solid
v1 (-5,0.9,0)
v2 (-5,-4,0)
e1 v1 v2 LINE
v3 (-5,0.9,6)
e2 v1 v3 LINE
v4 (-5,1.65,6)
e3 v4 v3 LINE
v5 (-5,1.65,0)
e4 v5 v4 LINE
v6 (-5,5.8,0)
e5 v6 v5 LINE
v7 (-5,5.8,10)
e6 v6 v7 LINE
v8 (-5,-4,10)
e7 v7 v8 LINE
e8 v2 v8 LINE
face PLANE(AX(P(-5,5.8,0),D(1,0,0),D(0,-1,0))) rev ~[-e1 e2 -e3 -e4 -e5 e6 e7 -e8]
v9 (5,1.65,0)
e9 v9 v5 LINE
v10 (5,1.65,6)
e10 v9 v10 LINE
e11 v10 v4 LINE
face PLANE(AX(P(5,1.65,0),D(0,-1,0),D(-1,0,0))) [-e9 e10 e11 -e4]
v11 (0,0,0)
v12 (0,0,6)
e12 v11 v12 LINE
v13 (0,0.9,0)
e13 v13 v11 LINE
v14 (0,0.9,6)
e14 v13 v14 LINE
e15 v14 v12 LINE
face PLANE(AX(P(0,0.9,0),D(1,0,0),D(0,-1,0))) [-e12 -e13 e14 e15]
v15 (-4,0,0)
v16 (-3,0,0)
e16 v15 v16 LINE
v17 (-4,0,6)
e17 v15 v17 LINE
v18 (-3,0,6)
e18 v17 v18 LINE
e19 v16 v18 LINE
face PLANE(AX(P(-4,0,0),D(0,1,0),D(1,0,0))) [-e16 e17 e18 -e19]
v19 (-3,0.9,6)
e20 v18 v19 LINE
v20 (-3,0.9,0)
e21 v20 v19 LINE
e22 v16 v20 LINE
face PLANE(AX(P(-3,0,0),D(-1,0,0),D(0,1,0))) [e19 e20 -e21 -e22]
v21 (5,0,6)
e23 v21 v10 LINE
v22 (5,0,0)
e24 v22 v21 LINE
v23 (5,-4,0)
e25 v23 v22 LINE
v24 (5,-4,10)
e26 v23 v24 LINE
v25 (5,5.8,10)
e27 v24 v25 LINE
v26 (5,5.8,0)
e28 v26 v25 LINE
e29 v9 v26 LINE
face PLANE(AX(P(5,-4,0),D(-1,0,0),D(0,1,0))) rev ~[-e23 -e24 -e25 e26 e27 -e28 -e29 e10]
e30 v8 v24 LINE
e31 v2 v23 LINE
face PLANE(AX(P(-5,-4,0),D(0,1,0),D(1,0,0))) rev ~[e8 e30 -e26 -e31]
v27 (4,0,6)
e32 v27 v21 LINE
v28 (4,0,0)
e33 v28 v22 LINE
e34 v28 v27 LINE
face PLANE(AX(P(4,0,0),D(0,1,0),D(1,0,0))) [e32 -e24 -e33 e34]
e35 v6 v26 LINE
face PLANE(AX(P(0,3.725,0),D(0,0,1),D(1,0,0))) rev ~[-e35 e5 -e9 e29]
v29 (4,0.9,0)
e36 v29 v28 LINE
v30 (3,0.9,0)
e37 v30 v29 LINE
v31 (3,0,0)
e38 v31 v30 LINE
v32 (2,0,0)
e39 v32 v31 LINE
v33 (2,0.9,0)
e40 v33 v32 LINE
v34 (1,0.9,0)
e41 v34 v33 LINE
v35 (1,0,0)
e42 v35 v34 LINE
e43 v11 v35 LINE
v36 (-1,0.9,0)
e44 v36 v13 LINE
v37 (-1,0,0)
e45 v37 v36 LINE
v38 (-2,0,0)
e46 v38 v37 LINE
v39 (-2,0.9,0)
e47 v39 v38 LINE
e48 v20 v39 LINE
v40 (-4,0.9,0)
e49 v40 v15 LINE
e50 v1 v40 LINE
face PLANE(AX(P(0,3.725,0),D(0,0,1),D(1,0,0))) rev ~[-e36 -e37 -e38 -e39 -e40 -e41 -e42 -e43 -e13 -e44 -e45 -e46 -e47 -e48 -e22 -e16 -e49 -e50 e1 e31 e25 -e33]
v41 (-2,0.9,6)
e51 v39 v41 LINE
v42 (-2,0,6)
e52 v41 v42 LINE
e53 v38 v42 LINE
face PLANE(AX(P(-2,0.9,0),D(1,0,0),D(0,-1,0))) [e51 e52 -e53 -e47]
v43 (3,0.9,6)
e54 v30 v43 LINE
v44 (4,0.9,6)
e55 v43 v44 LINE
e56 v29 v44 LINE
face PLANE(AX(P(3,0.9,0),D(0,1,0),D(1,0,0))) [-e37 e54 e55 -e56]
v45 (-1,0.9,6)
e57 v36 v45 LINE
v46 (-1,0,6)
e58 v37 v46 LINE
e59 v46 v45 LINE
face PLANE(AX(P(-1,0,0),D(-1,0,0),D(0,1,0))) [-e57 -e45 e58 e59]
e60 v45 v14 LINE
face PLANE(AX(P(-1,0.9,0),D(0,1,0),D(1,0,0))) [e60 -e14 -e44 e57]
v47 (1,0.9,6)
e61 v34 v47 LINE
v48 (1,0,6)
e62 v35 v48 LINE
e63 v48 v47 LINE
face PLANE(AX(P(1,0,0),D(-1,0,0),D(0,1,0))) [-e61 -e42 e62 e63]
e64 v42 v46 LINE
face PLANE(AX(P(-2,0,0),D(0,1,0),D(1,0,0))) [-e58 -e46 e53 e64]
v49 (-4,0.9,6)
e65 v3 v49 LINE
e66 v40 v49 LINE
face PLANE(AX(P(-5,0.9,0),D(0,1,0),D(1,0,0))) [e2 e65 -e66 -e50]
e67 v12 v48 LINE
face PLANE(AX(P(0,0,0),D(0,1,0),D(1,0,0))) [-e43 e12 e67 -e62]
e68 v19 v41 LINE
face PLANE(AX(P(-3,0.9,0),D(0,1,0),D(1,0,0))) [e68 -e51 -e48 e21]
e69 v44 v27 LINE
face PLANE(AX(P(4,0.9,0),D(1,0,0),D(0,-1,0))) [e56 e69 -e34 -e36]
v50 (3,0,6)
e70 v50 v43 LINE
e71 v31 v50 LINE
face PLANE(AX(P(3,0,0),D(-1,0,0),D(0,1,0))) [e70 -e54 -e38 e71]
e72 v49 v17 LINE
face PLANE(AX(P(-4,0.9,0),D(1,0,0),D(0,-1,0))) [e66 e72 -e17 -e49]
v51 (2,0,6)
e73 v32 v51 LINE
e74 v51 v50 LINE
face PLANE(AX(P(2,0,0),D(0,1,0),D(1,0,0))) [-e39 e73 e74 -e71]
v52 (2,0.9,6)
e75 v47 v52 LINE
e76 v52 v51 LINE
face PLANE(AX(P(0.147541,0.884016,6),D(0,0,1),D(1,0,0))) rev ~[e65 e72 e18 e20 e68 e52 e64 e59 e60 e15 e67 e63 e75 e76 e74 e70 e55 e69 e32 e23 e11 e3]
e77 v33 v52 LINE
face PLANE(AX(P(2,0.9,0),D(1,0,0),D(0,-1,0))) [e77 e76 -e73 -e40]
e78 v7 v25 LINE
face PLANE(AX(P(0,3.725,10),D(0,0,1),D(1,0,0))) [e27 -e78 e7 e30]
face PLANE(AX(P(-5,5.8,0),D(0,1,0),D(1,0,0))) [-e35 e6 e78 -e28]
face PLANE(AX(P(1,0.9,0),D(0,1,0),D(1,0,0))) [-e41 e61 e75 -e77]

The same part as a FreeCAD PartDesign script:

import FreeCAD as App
import Part
import Sketcher

V = App.Vector


def add_polygon(sketch, points):
    """Adds a closed chain of lines whose ends are joined by coincident constraints."""
    first, n = sketch.GeometryCount, len(points)
    for a, b in zip(points, points[1:] + points[:1]):
        sketch.addGeometry(Part.LineSegment(App.Vector(*a, 0), App.Vector(*b, 0)), False)
    for i in range(n):
        sketch.addConstraint(Sketcher.Constraint("Coincident", first + i, 2, first + (i + 1) % n, 1))

doc = App.newDocument("Part")
body = doc.addObject("PartDesign::Body", "Body")

sketch1 = body.newObject("Sketcher::SketchObject", "Sketch")
sketch1.AttachmentSupport = (doc.getObject("XY_Plane"), [""])
sketch1.MapMode = "FlatFace"
add_polygon(sketch1, [(-5, 6), (-5, -4), (5, -4), (5, 6)])
sketch1.addConstraint([
    Sketcher.Constraint("Vertical", 0),
    Sketcher.Constraint("Horizontal", 1),
    Sketcher.Constraint("Vertical", 2),
    Sketcher.Constraint("Horizontal", 3),
    Sketcher.Constraint("DistanceX", 1, 1, 1, 2, 10.0),
    Sketcher.Constraint("DistanceY", 0, 2, 0, 1, 9.8),
    Sketcher.Constraint("DistanceX", 0, 2, -1, 1, 5.0),
    Sketcher.Constraint("DistanceY", 0, 2, -1, 1, 4.0),
])
pad1 = body.newObject("PartDesign::Pad", "Pad")
pad1.Profile = sketch1
pad1.Length = 10

sketch2 = body.newObject("Sketcher::SketchObject", "Sketch001")
sketch2.AttachmentSupport = (doc.getObject("XY_Plane"), [""])
sketch2.MapMode = "FlatFace"
add_polygon(sketch2, [(5, 1.6), (-5, 1.6), (-5, 0.9), (-4, 0.9), (-4, 0), (-3, 0), (-3, 0.9), (-2, 0.9), (-2, 0), (-1, 0), (-1, 0.9), (0, 0.9), (0, 0), (1, 0), (1, 0.9), (2, 0.9), (2, 0), (3, 0), (3, 0.9), (4, 0.9), (4, 0), (5, 0)])
sketch2.addConstraint([
    Sketcher.Constraint("Horizontal", 0),
    Sketcher.Constraint("Vertical", 1),
    Sketcher.Constraint("Horizontal", 2),
    Sketcher.Constraint("Vertical", 3),
    Sketcher.Constraint("Horizontal", 4),
    Sketcher.Constraint("Vertical", 5),
    Sketcher.Constraint("Horizontal", 6),
    Sketcher.Constraint("Vertical", 7),
    Sketcher.Constraint("Horizontal", 8),
    Sketcher.Constraint("Vertical", 9),
    Sketcher.Constraint("Horizontal", 10),
    Sketcher.Constraint("Vertical", 11),
    Sketcher.Constraint("Horizontal", 12),
    Sketcher.Constraint("Vertical", 13),
    Sketcher.Constraint("Horizontal", 14),
    Sketcher.Constraint("Vertical", 15),
    Sketcher.Constraint("Horizontal", 16),
    Sketcher.Constraint("Vertical", 17),
    Sketcher.Constraint("Horizontal", 18),
    Sketcher.Constraint("Vertical", 19),
    Sketcher.Constraint("Horizontal", 20),
    Sketcher.Constraint("Vertical", 21),
    Sketcher.Constraint("Coincident", 11, 2, -1, 1),
    Sketcher.Constraint("Symmetric", 8, 2, 12, 2, -1, 1),
    Sketcher.Constraint("Symmetric", 7, 2, 15, 2, -1, 1),
    Sketcher.Constraint("Symmetric", 4, 2, 16, 2, -1, 1),
    Sketcher.Constraint("Symmetric", 3, 2, 19, 2, -1, 1),
    Sketcher.Constraint("Horizontal", 2, 2, 5, 2),
    Sketcher.Constraint("Horizontal", 6, 2, 9, 2),
    Sketcher.Constraint("Horizontal", 10, 2, 13, 2),
    Sketcher.Constraint("Horizontal", 14, 2, 17, 2),
    Sketcher.Constraint("Equal", 2, 4),
    Sketcher.Constraint("Equal", 4, 6),
    Sketcher.Constraint("Equal", 6, 8),
    Sketcher.Constraint("Equal", 8, 10),
    Sketcher.Constraint("Equal", 18, 20),
    Sketcher.Constraint("DistanceX", 0, 2, 0, 1, 10.0),
    Sketcher.Constraint("DistanceY", 3, 2, 3, 1, 0.9),
    Sketcher.Constraint("DistanceY", 1, 2, 1, 1, 0.75),
])
pocket1 = body.newObject("PartDesign::Pocket", "Pocket")
pocket1.Profile = sketch2
pocket1.Length = 6
pocket1.Reversed = True

doc.recompute()
